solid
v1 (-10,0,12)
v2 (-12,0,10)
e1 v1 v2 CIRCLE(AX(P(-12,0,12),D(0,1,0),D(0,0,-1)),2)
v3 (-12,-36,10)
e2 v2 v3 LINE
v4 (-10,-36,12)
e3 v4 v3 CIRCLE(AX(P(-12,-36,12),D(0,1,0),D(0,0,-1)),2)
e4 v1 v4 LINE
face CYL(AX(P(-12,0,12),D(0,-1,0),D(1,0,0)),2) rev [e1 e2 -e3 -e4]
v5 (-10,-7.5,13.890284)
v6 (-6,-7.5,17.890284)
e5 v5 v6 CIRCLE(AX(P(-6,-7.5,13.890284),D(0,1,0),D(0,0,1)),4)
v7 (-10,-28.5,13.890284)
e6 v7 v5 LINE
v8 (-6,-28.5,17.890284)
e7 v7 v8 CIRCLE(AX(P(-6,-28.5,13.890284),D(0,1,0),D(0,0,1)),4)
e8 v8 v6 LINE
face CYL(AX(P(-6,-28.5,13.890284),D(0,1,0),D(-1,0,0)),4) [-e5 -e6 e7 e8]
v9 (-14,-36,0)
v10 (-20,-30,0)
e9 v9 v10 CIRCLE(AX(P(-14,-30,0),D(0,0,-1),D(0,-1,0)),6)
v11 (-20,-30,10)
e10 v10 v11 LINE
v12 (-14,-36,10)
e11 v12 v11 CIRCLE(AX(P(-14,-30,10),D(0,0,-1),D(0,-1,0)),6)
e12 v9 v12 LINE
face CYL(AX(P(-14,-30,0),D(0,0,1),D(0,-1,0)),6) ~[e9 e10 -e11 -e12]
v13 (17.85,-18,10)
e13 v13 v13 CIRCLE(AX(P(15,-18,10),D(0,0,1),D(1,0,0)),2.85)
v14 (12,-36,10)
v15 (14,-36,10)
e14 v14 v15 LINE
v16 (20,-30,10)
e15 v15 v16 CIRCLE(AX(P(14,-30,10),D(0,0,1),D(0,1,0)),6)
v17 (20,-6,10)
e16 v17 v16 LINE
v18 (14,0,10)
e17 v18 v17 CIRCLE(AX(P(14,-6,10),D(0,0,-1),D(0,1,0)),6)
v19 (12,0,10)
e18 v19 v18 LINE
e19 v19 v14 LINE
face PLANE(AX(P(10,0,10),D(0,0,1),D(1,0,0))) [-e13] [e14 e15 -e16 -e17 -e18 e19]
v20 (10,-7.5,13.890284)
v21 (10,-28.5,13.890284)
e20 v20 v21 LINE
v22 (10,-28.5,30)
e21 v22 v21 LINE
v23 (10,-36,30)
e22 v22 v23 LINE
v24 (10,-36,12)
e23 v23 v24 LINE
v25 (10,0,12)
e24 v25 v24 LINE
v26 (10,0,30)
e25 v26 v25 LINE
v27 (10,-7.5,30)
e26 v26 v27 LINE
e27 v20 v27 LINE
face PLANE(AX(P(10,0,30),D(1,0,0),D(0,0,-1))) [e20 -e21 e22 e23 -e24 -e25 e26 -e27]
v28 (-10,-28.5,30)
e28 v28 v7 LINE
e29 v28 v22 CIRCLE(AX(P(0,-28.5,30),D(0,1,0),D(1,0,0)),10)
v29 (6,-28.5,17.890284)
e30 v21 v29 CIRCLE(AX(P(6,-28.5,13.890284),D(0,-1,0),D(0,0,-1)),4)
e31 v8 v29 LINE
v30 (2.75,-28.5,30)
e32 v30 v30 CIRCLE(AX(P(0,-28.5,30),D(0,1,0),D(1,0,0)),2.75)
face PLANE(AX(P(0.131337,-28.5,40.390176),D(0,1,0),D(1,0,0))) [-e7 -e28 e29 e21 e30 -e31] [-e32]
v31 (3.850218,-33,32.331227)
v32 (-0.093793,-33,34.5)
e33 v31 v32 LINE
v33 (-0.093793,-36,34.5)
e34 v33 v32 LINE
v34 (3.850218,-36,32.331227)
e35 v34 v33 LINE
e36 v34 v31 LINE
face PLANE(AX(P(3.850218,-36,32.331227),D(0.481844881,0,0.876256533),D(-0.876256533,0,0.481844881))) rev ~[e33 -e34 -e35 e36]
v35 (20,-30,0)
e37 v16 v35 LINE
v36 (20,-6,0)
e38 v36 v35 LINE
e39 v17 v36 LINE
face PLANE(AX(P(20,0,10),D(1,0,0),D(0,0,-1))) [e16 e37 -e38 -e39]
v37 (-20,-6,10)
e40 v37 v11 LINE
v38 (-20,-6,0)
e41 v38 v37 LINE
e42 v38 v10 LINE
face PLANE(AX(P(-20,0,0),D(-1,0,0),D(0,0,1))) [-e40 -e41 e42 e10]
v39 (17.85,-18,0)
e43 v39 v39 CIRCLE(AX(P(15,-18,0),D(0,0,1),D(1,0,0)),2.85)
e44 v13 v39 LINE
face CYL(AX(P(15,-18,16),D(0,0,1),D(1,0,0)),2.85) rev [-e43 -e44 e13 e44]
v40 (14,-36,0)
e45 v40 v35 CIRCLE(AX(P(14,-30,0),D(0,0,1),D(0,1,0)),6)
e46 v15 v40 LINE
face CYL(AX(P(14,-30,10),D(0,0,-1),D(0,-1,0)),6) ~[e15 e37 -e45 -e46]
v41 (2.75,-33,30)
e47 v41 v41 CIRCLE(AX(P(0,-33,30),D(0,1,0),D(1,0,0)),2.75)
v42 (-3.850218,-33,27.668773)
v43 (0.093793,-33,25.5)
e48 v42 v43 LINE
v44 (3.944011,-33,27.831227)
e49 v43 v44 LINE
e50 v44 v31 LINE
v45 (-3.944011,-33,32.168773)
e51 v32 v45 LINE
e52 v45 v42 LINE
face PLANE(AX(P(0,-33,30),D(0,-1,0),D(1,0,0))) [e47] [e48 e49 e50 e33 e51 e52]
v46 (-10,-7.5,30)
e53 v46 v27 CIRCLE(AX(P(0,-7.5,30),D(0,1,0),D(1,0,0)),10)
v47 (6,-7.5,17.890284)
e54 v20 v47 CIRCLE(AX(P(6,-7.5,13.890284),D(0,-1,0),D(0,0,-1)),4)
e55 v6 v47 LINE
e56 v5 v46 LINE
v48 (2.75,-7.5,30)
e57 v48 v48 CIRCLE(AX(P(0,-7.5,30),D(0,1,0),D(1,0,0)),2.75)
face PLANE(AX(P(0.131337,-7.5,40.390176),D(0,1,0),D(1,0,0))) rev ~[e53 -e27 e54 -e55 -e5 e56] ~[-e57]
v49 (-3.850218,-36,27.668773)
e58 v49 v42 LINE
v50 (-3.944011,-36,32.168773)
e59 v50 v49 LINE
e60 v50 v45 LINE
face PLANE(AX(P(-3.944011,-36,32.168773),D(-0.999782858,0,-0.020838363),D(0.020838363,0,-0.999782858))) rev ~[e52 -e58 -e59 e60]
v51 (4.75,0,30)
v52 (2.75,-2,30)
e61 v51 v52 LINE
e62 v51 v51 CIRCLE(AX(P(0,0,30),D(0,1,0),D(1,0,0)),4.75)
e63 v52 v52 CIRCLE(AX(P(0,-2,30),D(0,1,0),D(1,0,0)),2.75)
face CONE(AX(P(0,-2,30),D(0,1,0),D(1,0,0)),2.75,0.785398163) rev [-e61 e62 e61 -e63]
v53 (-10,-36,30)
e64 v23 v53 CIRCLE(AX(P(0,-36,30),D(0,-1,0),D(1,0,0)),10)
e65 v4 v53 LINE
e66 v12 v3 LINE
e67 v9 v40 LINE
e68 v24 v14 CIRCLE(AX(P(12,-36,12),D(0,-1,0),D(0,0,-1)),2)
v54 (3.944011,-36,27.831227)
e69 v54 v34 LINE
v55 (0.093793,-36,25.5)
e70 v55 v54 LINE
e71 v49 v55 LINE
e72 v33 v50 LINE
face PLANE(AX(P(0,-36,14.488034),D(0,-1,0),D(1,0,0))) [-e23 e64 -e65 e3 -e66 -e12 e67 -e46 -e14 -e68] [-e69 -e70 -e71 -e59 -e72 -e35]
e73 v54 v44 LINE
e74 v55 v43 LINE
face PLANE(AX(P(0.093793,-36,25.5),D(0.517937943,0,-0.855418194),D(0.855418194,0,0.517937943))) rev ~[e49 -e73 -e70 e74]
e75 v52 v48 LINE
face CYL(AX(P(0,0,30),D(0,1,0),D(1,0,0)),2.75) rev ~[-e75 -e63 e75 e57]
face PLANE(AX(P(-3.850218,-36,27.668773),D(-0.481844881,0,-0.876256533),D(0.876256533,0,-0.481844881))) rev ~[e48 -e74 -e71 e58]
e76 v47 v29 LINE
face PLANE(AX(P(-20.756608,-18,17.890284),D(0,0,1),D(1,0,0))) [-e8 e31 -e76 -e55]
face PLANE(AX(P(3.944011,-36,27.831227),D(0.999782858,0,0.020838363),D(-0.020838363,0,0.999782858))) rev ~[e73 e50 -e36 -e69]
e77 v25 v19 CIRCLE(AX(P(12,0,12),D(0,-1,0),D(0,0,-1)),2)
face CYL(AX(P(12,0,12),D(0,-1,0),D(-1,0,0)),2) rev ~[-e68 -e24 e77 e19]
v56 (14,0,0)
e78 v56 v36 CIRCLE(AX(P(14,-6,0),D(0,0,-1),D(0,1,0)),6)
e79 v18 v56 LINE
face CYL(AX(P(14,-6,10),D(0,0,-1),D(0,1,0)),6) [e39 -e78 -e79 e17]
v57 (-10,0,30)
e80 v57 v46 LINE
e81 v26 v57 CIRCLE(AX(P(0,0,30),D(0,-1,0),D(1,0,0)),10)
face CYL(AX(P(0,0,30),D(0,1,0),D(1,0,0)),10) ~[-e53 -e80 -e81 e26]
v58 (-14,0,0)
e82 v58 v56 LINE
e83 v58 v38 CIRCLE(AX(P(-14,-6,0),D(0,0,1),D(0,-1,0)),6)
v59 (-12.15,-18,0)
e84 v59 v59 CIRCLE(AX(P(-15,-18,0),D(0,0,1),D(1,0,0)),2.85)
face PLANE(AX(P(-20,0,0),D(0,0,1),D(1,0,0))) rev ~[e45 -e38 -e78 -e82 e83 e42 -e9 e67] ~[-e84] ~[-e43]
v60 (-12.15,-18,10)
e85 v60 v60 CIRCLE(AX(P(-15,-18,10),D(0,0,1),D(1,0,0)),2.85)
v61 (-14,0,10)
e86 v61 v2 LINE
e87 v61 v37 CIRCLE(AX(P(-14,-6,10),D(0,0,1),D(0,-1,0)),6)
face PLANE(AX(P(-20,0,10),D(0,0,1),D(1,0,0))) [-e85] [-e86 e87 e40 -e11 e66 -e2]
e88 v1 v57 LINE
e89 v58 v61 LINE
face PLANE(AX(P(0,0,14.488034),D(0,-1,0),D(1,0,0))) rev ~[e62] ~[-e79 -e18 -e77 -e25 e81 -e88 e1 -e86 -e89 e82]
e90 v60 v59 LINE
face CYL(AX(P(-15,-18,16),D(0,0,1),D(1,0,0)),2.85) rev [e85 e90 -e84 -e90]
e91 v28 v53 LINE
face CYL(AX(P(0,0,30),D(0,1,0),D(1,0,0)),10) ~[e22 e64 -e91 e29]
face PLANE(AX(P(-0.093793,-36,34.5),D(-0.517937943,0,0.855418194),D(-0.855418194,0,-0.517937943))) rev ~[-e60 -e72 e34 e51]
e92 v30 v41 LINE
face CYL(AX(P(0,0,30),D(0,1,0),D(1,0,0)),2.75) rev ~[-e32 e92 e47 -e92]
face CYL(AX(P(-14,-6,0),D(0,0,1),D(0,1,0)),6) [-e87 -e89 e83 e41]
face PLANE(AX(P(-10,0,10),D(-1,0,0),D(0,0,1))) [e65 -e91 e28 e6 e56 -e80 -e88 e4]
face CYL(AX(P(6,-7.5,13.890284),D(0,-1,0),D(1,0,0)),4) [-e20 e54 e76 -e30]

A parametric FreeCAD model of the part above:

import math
import FreeCAD as App
import Part
import Sketcher
from FreeCAD import Vector
Q = App.Units.Quantity


def edges_at(feature, points):
    """Names of the edges that pass closest to the given points."""
    edges = feature.Shape.Edges
    near = lambda p: min(range(len(edges)), key=lambda i: edges[i].distToShape(Part.Vertex(*p))[0])
    return sorted({f"Edge{near(p) + 1}" for p in points})

doc = App.newDocument("Part")
body = doc.addObject("PartDesign::Body", "Body")

# Sketch on XZ plane
sketch1 = body.newObject("Sketcher::SketchObject", "Sketch")
sketch1.AttachmentSupport = (doc.getObject("XZ_Plane"), [""])
sketch1.MapMode = "FlatFace"
sketch1.addGeometry([
    Part.LineSegment(Vector(-20, 0, 0), Vector(20, 0, 0)),  # 0
    Part.LineSegment(Vector(20, 0, 0), Vector(20, 10, 0)),  # 1
    Part.LineSegment(Vector(20, 10, 0), Vector(10, 10, 0)),  # 2
    Part.LineSegment(Vector(10, 10, 0), Vector(10, 30, 0)),  # 3
    Part.ArcOfCircle(Part.Circle(Vector(0, 30, 0), Vector(0, 0, 1), 10), math.radians(0), math.radians(180)),  # 4
    Part.LineSegment(Vector(-10, 30, 0), Vector(-10, 10, 0)),  # 5
    Part.LineSegment(Vector(-10, 10, 0), Vector(-20, 10, 0)),  # 6
    Part.LineSegment(Vector(-20, 10, 0), Vector(-20, 0, 0)),  # 7
], False)
sketch1.addConstraint([
    Sketcher.Constraint("Coincident", 0, 2, 1, 1),
    Sketcher.Constraint("Coincident", 1, 2, 2, 1),
    Sketcher.Constraint("Coincident", 2, 2, 3, 1),
    Sketcher.Constraint("Tangent", 3, 2, 4, 1),
    Sketcher.Constraint("Tangent", 4, 2, 5, 1),
    Sketcher.Constraint("Coincident", 5, 2, 6, 1),
    Sketcher.Constraint("Coincident", 6, 2, 7, 1),
    Sketcher.Constraint("Coincident", 7, 2, 0, 1),
    Sketcher.Constraint("Horizontal", 0),
    Sketcher.Constraint("Vertical", 1),
    Sketcher.Constraint("Horizontal", 2),
    Sketcher.Constraint("Vertical", 3),
    Sketcher.Constraint("Vertical", 5),
    Sketcher.Constraint("Horizontal", 6),
    Sketcher.Constraint("Vertical", 7),
    Sketcher.Constraint("Symmetric", 0, 2, 7, 2, -1, 1),
    Sketcher.Constraint("Symmetric", 2, 2, 5, 2, -2),
    Sketcher.Constraint("Equal", 6, 1),
    Sketcher.Constraint("Radius", 4, Q("10 mm")),
    Sketcher.Constraint("DistanceX", 0, 1, 0, 2, Q("40 mm")),
    Sketcher.Constraint("DistanceY", 3, 1, 3, 2, Q("20 mm")),
])
pad1 = body.newObject("PartDesign::Pad", "Pad")
pad1.Profile = sketch1
pad1.Length = 36

# Sketch on XZ plane
sketch2 = body.newObject("Sketcher::SketchObject", "Sketch001")
sketch2.AttachmentSupport = (doc.getObject("XZ_Plane"), [""])
sketch2.MapMode = "FlatFace"
sketch2.AttachmentOffset = App.Placement(Vector(0, 0, 18), App.Rotation())
sketch2.addGeometry([
    Part.LineSegment(Vector(-21, 18, 0), Vector(-21, 63, 0)),
    Part.LineSegment(Vector(-21, 63, 0), Vector(21, 63, 0)),
    Part.LineSegment(Vector(21, 63, 0), Vector(21, 18, 0)),
    Part.LineSegment(Vector(21, 18, 0), Vector(-21, 18, 0)),
], False)
sketch2.addConstraint([
    Sketcher.Constraint("Coincident", 0, 2, 1, 1),
    Sketcher.Constraint("Coincident", 1, 2, 2, 1),
    Sketcher.Constraint("Coincident", 2, 2, 3, 1),
    Sketcher.Constraint("Coincident", 3, 2, 0, 1),
    Sketcher.Constraint("Vertical", 0),
    Sketcher.Constraint("Horizontal", 1),
    Sketcher.Constraint("Vertical", 2),
    Sketcher.Constraint("Horizontal", 3),
    Sketcher.Constraint("DistanceX", 1, 1, 1, 2, Q("41.77589 mm")),
    Sketcher.Constraint("DistanceY", 0, 1, 0, 2, Q("44.999783 mm")),
    Sketcher.Constraint("DistanceX", 0, 2, -1, 1, Q("20.756608 mm")),
    Sketcher.Constraint("DistanceY", -1, 1, 0, 2, Q("62.890068 mm")),
])
pocket1 = body.newObject("PartDesign::Pocket", "Pocket")
pocket1.Profile = sketch2
pocket1.Length = 21
pocket1.Midplane = True

# Sketch on XZ plane
sketch3 = body.newObject("Sketcher::SketchObject", "Sketch002")
sketch3.AttachmentSupport = (doc.getObject("XZ_Plane"), [""])
sketch3.MapMode = "FlatFace"
sketch3.addGeometry(Part.Circle(Vector(0, 30, 0), Vector(0, 0, 1), 2.8), False)
sketch3.addConstraint([
    Sketcher.Constraint("PointOnObject", 0, 3, -2),
    Sketcher.Constraint("Diameter", 0, Q("5.5 mm")),
    Sketcher.Constraint("DistanceY", -1, 1, 0, 3, Q("30 mm")),
])
pocket2 = body.newObject("PartDesign::Pocket", "Pocket001")
pocket2.Profile = sketch3
pocket2.Type = "ThroughAll"
pocket2.Reversed = True
doc.recompute()

fillet = body.newObject("PartDesign::Fillet", "Fillet")
fillet.Base = (pocket2, edges_at(pocket2, [(10, -18, 17.89), (-10, -18, 17.89)]))
fillet.Radius = 4
doc.recompute()

fillet2 = body.newObject("PartDesign::Fillet", "Fillet001")
fillet2.Base = (fillet, edges_at(fillet, [(10, -18, 10), (-10, -18, 10)]))
fillet2.Radius = 2

# Sketch on XY plane
sketch4 = body.newObject("Sketcher::SketchObject", "Sketch003")
sketch4.AttachmentSupport = (doc.getObject("XY_Plane"), [""])
sketch4.MapMode = "FlatFace"
sketch4.AttachmentOffset = App.Placement(Vector(0, 0, 16), App.Rotation())
sketch4.addGeometry([
    Part.Circle(Vector(15, -18, 0), Vector(0, 0, 1), 2.9),
    Part.Circle(Vector(-15, -18, 0), Vector(0, 0, 1), 2.9),
], False)
sketch4.addConstraint([
    Sketcher.Constraint("Equal", 0, 1),
    Sketcher.Constraint("Symmetric", 0, 3, 1, 3, -2),
    Sketcher.Constraint("Diameter", 0, Q("5.7 mm")),
    Sketcher.Constraint("DistanceX", -1, 1, 0, 3, Q("15 mm")),
    Sketcher.Constraint("DistanceY", 0, 3, -1, 1, Q("18 mm")),
])
pocket3 = body.newObject("PartDesign::Pocket", "Pocket002")
pocket3.Profile = sketch4
pocket3.Type = "ThroughAll"
doc.recompute()

fillet3 = body.newObject("PartDesign::Fillet", "Fillet002")
fillet3.Base = (pocket3, edges_at(pocket3, [
    (20, 0, 5),
    (-20, 0, 5),
    (-20, -36, 5),
    (20, -36, 5),
]))
fillet3.Radius = 6
doc.recompute()

chamfer = body.newObject("PartDesign::Chamfer", "Chamfer")
chamfer.Base = (fillet3, edges_at(fillet3, [(-2.75, 0, 30)]))
chamfer.Size = 2

# Sketch on XZ plane
sketch5 = body.newObject("Sketcher::SketchObject", "Sketch004")
sketch5.AttachmentSupport = (doc.getObject("XZ_Plane"), [""])
sketch5.MapMode = "FlatFace"
sketch5.AttachmentOffset = App.Placement(Vector(0, 0, 36), App.Rotation())
sketch5.addGeometry([
    Part.LineSegment(Vector(-0.1, 34.5, 0), Vector(-3.9, 32.2, 0)),  # 0
    Part.LineSegment(Vector(-3.9, 32.2, 0), Vector(-3.9, 27.7, 0)),  # 1
    Part.LineSegment(Vector(-3.9, 27.7, 0), Vector(0.1, 25.5, 0)),  # 2
    Part.LineSegment(Vector(0.1, 25.5, 0), Vector(3.9, 27.8, 0)),  # 3
    Part.LineSegment(Vector(3.9, 27.8, 0), Vector(3.9, 32.3, 0)),  # 4
    Part.LineSegment(Vector(3.9, 32.3, 0), Vector(-0.1, 34.5, 0)),  # 5
], False)
sketch5.addConstraint([
    Sketcher.Constraint("Coincident", 0, 2, 1, 1),
    Sketcher.Constraint("Coincident", 1, 2, 2, 1),
    Sketcher.Constraint("Coincident", 2, 2, 3, 1),
    Sketcher.Constraint("Coincident", 3, 2, 4, 1),
    Sketcher.Constraint("Coincident", 4, 2, 5, 1),
    Sketcher.Constraint("Coincident", 5, 2, 0, 1),
    Sketcher.Constraint("Parallel", 0, 3),
    Sketcher.Constraint("Parallel", 1, 4),
    Sketcher.Constraint("Parallel", 2, 5),
    Sketcher.Constraint("Equal", 0, 1),
    Sketcher.Constraint("Equal", 1, 2),
    Sketcher.Constraint("Equal", 2, 3),
    Sketcher.Constraint("DistanceY", 2, 2, 5, 2, Q("9 mm")),
    Sketcher.Constraint("DistanceY", -1, 1, 2, 2, Q("25.5 mm")),
    Sketcher.Constraint("DistanceY", 1, 2, 0, 2, Q("4.5 mm")),
    Sketcher.Constraint("DistanceX", 0, 2, -1, 1, Q("3.944011 mm")),
    Sketcher.Constraint("DistanceX", -1, 1, 3, 2, Q("3.944011 mm")),
    Sketcher.Constraint("DistanceX", 1, 2, 2, 2, Q("3.944011 mm")),
])
pocket4 = body.newObject("PartDesign::Pocket", "Pocket003")
pocket4.Profile = sketch5
pocket4.Length = 3

doc.recompute()
